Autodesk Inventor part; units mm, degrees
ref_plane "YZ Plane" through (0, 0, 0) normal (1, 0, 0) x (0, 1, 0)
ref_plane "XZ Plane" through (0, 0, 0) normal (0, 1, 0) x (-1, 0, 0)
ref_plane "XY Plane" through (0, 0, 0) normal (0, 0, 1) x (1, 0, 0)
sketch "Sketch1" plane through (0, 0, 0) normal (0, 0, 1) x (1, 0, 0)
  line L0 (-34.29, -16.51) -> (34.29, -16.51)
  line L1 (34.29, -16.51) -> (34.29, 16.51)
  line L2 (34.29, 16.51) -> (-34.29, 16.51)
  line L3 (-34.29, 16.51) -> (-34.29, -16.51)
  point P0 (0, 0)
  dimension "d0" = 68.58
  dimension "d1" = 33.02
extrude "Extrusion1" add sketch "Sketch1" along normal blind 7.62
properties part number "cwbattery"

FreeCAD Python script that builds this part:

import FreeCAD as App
import Part
import Sketcher
Q = App.Units.Quantity


def add_polygon(sketch, points):
    """Adds a closed chain of lines whose ends are joined by coincident constraints."""
    first, n = sketch.GeometryCount, len(points)
    for a, b in zip(points, points[1:] + points[:1]):
        sketch.addGeometry(Part.LineSegment(App.Vector(*a, 0), App.Vector(*b, 0)), False)
    for i in range(n):
        sketch.addConstraint(Sketcher.Constraint("Coincident", first + i, 2, first + (i + 1) % n, 1))

doc = App.newDocument("Part")
params = doc.addObject("Spreadsheet::Sheet", "Params")
for row, (alias, value) in enumerate([
    ("sketch1_width", "2.7 in"),
    ("sketch1_height", "1.3 in"),
    ("pad1_length", "0.3 in"),
], start=1):
    params.set(f"A{row}", alias)
    params.set(f"B{row}", "=" + value)
    params.setAlias(f"B{row}", alias)

body = doc.addObject("PartDesign::Body", "Body")

sketch1 = doc.addObject("Sketcher::SketchObject", "Sketch")
body.addObject(sketch1)
sketch1.AttachmentSupport = (doc.XY_Plane, [""])
sketch1.MapMode = "FlatFace"
add_polygon(sketch1, [(-34.29, 16.51), (-34.29, -16.51), (34.29, -16.51), (34.29, 16.51)])
sketch1.addConstraint(Sketcher.Constraint("Vertical", 0))
sketch1.addConstraint(Sketcher.Constraint("Horizontal", 1))
sketch1.addConstraint(Sketcher.Constraint("Vertical", 2))
sketch1.addConstraint(Sketcher.Constraint("Horizontal", 3))
sketch1.addConstraint(Sketcher.Constraint("Symmetric", 0, 2, 2, 2, -1, 1))
sketch1.addConstraint(Sketcher.Constraint("DistanceX", 1, 1, 1, 2, Q("2.7 in")))
sketch1.addConstraint(Sketcher.Constraint("DistanceY", 0, 2, 0, 1, Q("1.3 in")))
sketch1.setExpression("Constraints[9]", "Params.sketch1_width")
sketch1.setExpression("Constraints[10]", "Params.sketch1_height")
pad1 = doc.addObject("PartDesign::Pad", "Pad")
body.addObject(pad1)
pad1.Profile = sketch1
pad1.setExpression("Length", "Params.pad1_length")

doc.recompute()
